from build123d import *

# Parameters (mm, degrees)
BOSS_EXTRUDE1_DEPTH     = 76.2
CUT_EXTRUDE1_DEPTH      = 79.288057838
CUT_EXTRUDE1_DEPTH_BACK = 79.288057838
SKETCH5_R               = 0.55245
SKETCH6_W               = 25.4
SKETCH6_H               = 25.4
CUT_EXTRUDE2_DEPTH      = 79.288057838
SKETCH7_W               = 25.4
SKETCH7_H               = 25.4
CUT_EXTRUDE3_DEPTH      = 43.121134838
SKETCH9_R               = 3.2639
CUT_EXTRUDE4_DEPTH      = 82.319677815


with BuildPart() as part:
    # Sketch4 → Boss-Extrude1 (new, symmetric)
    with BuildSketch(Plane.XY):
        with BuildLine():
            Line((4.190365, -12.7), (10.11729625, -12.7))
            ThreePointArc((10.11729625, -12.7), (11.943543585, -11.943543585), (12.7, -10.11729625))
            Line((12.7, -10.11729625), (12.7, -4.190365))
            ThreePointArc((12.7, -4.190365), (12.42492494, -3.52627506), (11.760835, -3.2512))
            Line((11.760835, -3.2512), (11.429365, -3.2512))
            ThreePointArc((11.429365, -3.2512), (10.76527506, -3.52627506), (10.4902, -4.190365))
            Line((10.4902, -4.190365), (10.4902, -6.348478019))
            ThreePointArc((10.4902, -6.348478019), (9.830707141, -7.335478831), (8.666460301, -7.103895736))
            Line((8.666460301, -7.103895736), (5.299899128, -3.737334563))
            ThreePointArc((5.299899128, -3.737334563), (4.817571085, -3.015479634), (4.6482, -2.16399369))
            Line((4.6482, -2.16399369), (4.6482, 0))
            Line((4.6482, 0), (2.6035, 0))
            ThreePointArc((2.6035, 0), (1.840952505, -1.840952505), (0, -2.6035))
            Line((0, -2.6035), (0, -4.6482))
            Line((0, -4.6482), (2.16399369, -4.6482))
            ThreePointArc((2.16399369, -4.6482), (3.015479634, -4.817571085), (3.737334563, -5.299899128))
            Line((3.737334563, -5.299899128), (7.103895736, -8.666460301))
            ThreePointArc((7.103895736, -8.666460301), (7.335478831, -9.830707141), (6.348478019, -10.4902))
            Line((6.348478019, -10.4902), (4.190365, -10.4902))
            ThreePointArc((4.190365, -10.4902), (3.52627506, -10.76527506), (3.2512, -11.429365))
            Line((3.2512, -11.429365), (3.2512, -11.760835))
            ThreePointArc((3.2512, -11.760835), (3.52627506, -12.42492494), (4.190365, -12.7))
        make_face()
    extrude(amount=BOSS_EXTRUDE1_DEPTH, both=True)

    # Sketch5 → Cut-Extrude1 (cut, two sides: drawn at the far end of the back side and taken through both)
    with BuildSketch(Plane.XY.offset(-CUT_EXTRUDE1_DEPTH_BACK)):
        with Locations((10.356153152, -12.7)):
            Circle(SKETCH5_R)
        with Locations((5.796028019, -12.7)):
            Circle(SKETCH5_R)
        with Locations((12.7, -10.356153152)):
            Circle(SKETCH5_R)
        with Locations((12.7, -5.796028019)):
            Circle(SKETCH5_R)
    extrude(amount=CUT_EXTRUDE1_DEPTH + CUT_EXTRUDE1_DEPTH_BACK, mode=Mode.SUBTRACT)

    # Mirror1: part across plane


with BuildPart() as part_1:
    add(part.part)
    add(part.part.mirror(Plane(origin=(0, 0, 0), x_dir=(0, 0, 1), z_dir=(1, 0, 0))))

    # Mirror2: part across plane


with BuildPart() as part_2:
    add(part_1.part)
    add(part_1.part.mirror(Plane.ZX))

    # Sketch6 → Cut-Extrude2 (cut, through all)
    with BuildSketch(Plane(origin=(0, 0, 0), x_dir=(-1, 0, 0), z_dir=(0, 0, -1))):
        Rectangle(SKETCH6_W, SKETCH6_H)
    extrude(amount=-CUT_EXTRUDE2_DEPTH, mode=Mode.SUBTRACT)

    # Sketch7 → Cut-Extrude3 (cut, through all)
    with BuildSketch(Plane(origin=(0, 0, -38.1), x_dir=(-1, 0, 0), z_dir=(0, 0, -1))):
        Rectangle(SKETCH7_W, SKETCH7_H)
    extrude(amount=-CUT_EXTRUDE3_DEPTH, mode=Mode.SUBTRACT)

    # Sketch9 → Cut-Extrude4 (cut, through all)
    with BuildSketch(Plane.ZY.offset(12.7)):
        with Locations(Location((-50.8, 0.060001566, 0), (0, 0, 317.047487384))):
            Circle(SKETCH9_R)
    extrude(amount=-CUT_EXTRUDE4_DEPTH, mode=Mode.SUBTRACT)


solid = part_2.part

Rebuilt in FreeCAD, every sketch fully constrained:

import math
import FreeCAD as App
import Part
import Sketcher
Q = App.Units.Quantity

doc = App.newDocument("Part")
body = doc.addObject("PartDesign::Body", "Body")

# Sketch on XY plane
sketch1 = body.newObject("Sketcher::SketchObject", "Sketch")
sketch1.AttachmentSupport = (doc.getObject("XY_Plane"), [""])
sketch1.MapMode = "FlatFace"
sketch1.addGeometry([
    Part.LineSegment(App.Vector(4.190365, -12.7, 0), App.Vector(10.117296, -12.7, 0)),  # 0
    Part.ArcOfCircle(Part.Circle(App.Vector(10.117296, -10.117296, 0), App.Vector(0, 0, 1), 2.582704), math.radians(-90), math.radians(0)),  # 1
    Part.LineSegment(App.Vector(12.7, -10.117296, 0), App.Vector(12.7, -4.190365, 0)),  # 2
    Part.ArcOfCircle(Part.Circle(App.Vector(11.760835, -4.190365, 0), App.Vector(0, 0, 1), 0.939165), math.radians(0), math.radians(90)),  # 3
    Part.LineSegment(App.Vector(11.760835, -3.2512, 0), App.Vector(11.429365, -3.2512, 0)),  # 4
    Part.ArcOfCircle(Part.Circle(App.Vector(11.429365, -4.190365, 0), App.Vector(0, 0, 1), 0.939165), math.radians(90), math.radians(180)),  # 5
    Part.LineSegment(App.Vector(10.4902, -4.190365, 0), App.Vector(10.4902, -6.348478, 0)),  # 6
    Part.ArcOfCircle(Part.Circle(App.Vector(9.421878, -6.348478, 0), App.Vector(0, 0, 1), 1.068322), math.radians(-135), math.radians(0)),  # 7
    Part.LineSegment(App.Vector(8.66646, -7.103896, 0), App.Vector(5.299899, -3.737335, 0)),  # 8
    Part.ArcOfCircle(Part.Circle(App.Vector(6.87324, -2.163994, 0), App.Vector(0, 0, 1), 2.22504), math.radians(-180), math.radians(-135)),  # 9
    Part.LineSegment(App.Vector(4.6482, -2.163994, 0), App.Vector(4.6482, 0, 0)),  # 10
    Part.LineSegment(App.Vector(4.6482, 0, 0), App.Vector(2.6035, 0, 0)),  # 11
    Part.ArcOfCircle(Part.Circle(App.Vector(0, 0, 0), App.Vector(0, 0, 1), 2.6035), math.radians(-90), math.radians(0)),  # 12
    Part.LineSegment(App.Vector(0, -2.6035, 0), App.Vector(0, -4.6482, 0)),  # 13
    Part.LineSegment(App.Vector(0, -4.6482, 0), App.Vector(2.163994, -4.6482, 0)),  # 14
    Part.ArcOfCircle(Part.Circle(App.Vector(2.163994, -6.87324, 0), App.Vector(0, 0, 1), 2.22504), math.radians(45), math.radians(90)),  # 15
    Part.LineSegment(App.Vector(3.737335, -5.299899, 0), App.Vector(7.103896, -8.66646, 0)),  # 16
    Part.ArcOfCircle(Part.Circle(App.Vector(6.348478, -9.421878, 0), App.Vector(0, 0, 1), 1.068322), math.radians(-90), math.radians(45)),  # 17
    Part.LineSegment(App.Vector(6.348478, -10.4902, 0), App.Vector(4.190365, -10.4902, 0)),  # 18
    Part.ArcOfCircle(Part.Circle(App.Vector(4.190365, -11.429365, 0), App.Vector(0, 0, 1), 0.939165), math.radians(90), math.radians(180)),  # 19
    Part.LineSegment(App.Vector(3.2512, -11.429365, 0), App.Vector(3.2512, -11.760835, 0)),  # 20
    Part.ArcOfCircle(Part.Circle(App.Vector(4.190365, -11.760835, 0), App.Vector(0, 0, 1), 0.939165), math.radians(-180), math.radians(-90)),  # 21
], False)
sketch1.addConstraint([
    Sketcher.Constraint("Tangent", 0, 2, 1, 1),
    Sketcher.Constraint("Tangent", 1, 2, 2, 1),
    Sketcher.Constraint("Tangent", 2, 2, 3, 1),
    Sketcher.Constraint("Tangent", 3, 2, 4, 1),
    Sketcher.Constraint("Tangent", 4, 2, 5, 1),
    Sketcher.Constraint("Tangent", 5, 2, 6, 1),
    Sketcher.Constraint("Tangent", 6, 2, 7, 2),
    Sketcher.Constraint("Tangent", 7, 1, 8, 1),
    Sketcher.Constraint("Tangent", 8, 2, 9, 2),
    Sketcher.Constraint("Tangent", 9, 1, 10, 1),
    Sketcher.Constraint("Coincident", 10, 2, 11, 1),
    Sketcher.Constraint("Coincident", 11, 2, 12, 2),
    Sketcher.Constraint("Coincident", 12, 1, 13, 1),
    Sketcher.Constraint("Coincident", 13, 2, 14, 1),
    Sketcher.Constraint("Tangent", 14, 2, 15, 2),
    Sketcher.Constraint("Tangent", 15, 1, 16, 1),
    Sketcher.Constraint("Tangent", 16, 2, 17, 2),
    Sketcher.Constraint("Tangent", 17, 1, 18, 1),
    Sketcher.Constraint("Tangent", 18, 2, 19, 1),
    Sketcher.Constraint("Tangent", 19, 2, 20, 1),
    Sketcher.Constraint("Tangent", 20, 2, 21, 1),
    Sketcher.Constraint("Tangent", 21, 2, 0, 1),
    Sketcher.Constraint("Horizontal", 0),
    Sketcher.Constraint("Vertical", 2),
    Sketcher.Constraint("Horizontal", 4),
    Sketcher.Constraint("Vertical", 6),
    Sketcher.Constraint("Vertical", 10),
    Sketcher.Constraint("Horizontal", 11),
    Sketcher.Constraint("Vertical", 13),
    Sketcher.Constraint("Horizontal", 14),
    Sketcher.Constraint("Horizontal", 18),
    Sketcher.Constraint("Vertical", 20),
    Sketcher.Constraint("Coincident", 12, 3, -1, 1),
    Sketcher.Constraint("Equal", 3, 5),
    Sketcher.Constraint("Equal", 9, 15),
    Sketcher.Constraint("Equal", 7, 17),
    Sketcher.Constraint("Equal", 5, 19),
    Sketcher.Constraint("Equal", 19, 21),
    Sketcher.Constraint("PointOnObject", 10, 2, -1),
    Sketcher.Constraint("PointOnObject", 12, 1, -2),
    Sketcher.Constraint("Parallel", 8, 16),
    Sketcher.Constraint("Equal", 0, 2),
    Sketcher.Constraint("Equal", 18, 6),
    Sketcher.Constraint("Equal", 14, 10),
    Sketcher.Constraint("Equal", 11, 13),
    Sketcher.Constraint("Equal", 4, 20),
    Sketcher.Constraint("Equal", 8, 16),
    Sketcher.Constraint("DistanceY", 0, 2, -1, 1, Q("0.5 in")),
    Sketcher.Constraint("Radius", 9, Q("0.0876 in")),
    Sketcher.Constraint("Radius", 12, Q("0.1025 in")),
    Sketcher.Constraint("DistanceX", 9, 1, 5, 2, Q("0.23 in")),
    Sketcher.Constraint("DistanceX", 11, 2, 11, 1, Q("0.0805 in")),
    Sketcher.Constraint("DistanceY", 3, 2, -1, 1, Q("0.128 in")),
    Sketcher.Constraint("Radius", 7, 1.068322),
    Sketcher.Constraint("DistanceX", 17, 3, 7, 3, Q("0.121 in")),
    Sketcher.Constraint("Radius", 1, 2.582704),
    Sketcher.Constraint("Radius", 3, 0.939165),
])
pad1 = body.newObject("PartDesign::Pad", "Pad")
pad1.Profile = sketch1
pad1.Length = Q("6 in")
pad1.Midplane = True

# Sketch on XY plane
sketch2 = body.newObject("Sketcher::SketchObject", "Sketch001")
sketch2.AttachmentSupport = (doc.getObject("XY_Plane"), [""])
sketch2.MapMode = "FlatFace"
sketch2.addGeometry([
    Part.Circle(App.Vector(10.356153, -12.7, 0), App.Vector(0, 0, 1), 0.55245),
    Part.Circle(App.Vector(5.796028, -12.7, 0), App.Vector(0, 0, 1), 0.55245),
    Part.Circle(App.Vector(12.7, -10.356153, 0), App.Vector(0, 0, 1), 0.55245),
    Part.Circle(App.Vector(12.7, -5.796028, 0), App.Vector(0, 0, 1), 0.55245),
], False)
sketch2.addConstraint([
    Sketcher.Constraint("Equal", 0, 1),
    Sketcher.Constraint("Equal", 1, 2),
    Sketcher.Constraint("Equal", 2, 3),
    Sketcher.Constraint("Horizontal", 0, 3, 1, 3),
    Sketcher.Constraint("Vertical", 2, 3, 3, 3),
    Sketcher.Constraint("Diameter", 0, Q("0.0435 in")),
    Sketcher.Constraint("DistanceY", 0, 3, -1, 1, Q("0.5 in")),
    Sketcher.Constraint("DistanceX", -1, 1, 2, 3, Q("0.5 in")),
    Sketcher.Constraint("DistanceX", -1, 1, 1, 3, 5.796028),
    Sketcher.Constraint("DistanceY", 3, 3, -1, 1, 5.796028),
    Sketcher.Constraint("DistanceX", -1, 1, 0, 3, 10.356153),
    Sketcher.Constraint("DistanceY", 2, 3, -1, 1, 10.356153),
])
pocket1 = body.newObject("PartDesign::Pocket", "Pocket")
pocket1.Profile = sketch2
pocket1.Type = "ThroughAll"
pocket1.Midplane = True
body2 = doc.addObject("PartDesign::Body", "Body001")
doc.recompute()

body2.BaseFeature = body
doc.recompute()

mirroring = doc.addObject("Part::Mirroring", "Mirroring")
mirroring.Source = body
mirroring.Base = App.Vector(0, 0, 0)
mirroring.Normal = App.Vector(1, 0, 0)
body3 = doc.addObject("PartDesign::Body", "Body002")
body3.BaseFeature = mirroring
boolean = body2.newObject("PartDesign::Boolean", "Boolean")
boolean.Type = "Fuse"
boolean.addObjects([body3])
doc.recompute()
body4 = doc.addObject("PartDesign::Body", "Body003")
doc.recompute()

body4.BaseFeature = body2
doc.recompute()

mirroring2 = doc.addObject("Part::Mirroring", "Mirroring001")
mirroring2.Source = body2
mirroring2.Base = App.Vector(0, 0, 0)
mirroring2.Normal = App.Vector(0, 1, 0)
body5 = doc.addObject("PartDesign::Body", "Body004")
body5.BaseFeature = mirroring2
boolean2 = body4.newObject("PartDesign::Boolean", "Boolean001")
boolean2.Type = "Fuse"
boolean2.addObjects([body5])
doc.recompute()

# Sketch on XY plane
sketch3 = body4.newObject("Sketcher::SketchObject", "Sketch002")
sketch3.AttachmentSupport = (doc.getObject("XY_Plane003"), [""])
sketch3.MapMode = "FlatFace"
sketch3.addGeometry([
    Part.LineSegment(App.Vector(12.7, 12.7, 0), App.Vector(12.7, -12.7, 0)),
    Part.LineSegment(App.Vector(12.7, -12.7, 0), App.Vector(-12.7, -12.7, 0)),
    Part.LineSegment(App.Vector(-12.7, -12.7, 0), App.Vector(-12.7, 12.7, 0)),
    Part.LineSegment(App.Vector(-12.7, 12.7, 0), App.Vector(12.7, 12.7, 0)),
], False)
sketch3.addConstraint([
    Sketcher.Constraint("Coincident", 0, 2, 1, 1),
    Sketcher.Constraint("Coincident", 1, 2, 2, 1),
    Sketcher.Constraint("Coincident", 2, 2, 3, 1),
    Sketcher.Constraint("Coincident", 3, 2, 0, 1),
    Sketcher.Constraint("Vertical", 0),
    Sketcher.Constraint("Horizontal", 1),
    Sketcher.Constraint("Vertical", 2),
    Sketcher.Constraint("Horizontal", 3),
    Sketcher.Constraint("Symmetric", 0, 2, 2, 2, -1, 1),
    Sketcher.Constraint("Equal", 3, 0),
    Sketcher.Constraint("DistanceX", 1, 2, 1, 1, Q("1 in")),
])
pocket2 = body4.newObject("PartDesign::Pocket", "Pocket001")
pocket2.Profile = sketch3
pocket2.Type = "ThroughAll"
pocket2.Reversed = True

# Sketch on XY plane
sketch4 = body4.newObject("Sketcher::SketchObject", "Sketch003")
sketch4.AttachmentSupport = (doc.getObject("XY_Plane003"), [""])
sketch4.MapMode = "FlatFace"
sketch4.AttachmentOffset = App.Placement(App.Vector(0, 0, -1.5 * 25.4), App.Rotation())
sketch4.addGeometry([
    Part.LineSegment(App.Vector(12.7, 12.7, 0), App.Vector(12.7, -12.7, 0)),
    Part.LineSegment(App.Vector(12.7, -12.7, 0), App.Vector(-12.7, -12.7, 0)),
    Part.LineSegment(App.Vector(-12.7, -12.7, 0), App.Vector(-12.7, 12.7, 0)),
    Part.LineSegment(App.Vector(-12.7, 12.7, 0), App.Vector(12.7, 12.7, 0)),
], False)
sketch4.addConstraint([
    Sketcher.Constraint("Coincident", 0, 2, 1, 1),
    Sketcher.Constraint("Coincident", 1, 2, 2, 1),
    Sketcher.Constraint("Coincident", 2, 2, 3, 1),
    Sketcher.Constraint("Coincident", 3, 2, 0, 1),
    Sketcher.Constraint("Vertical", 0),
    Sketcher.Constraint("Horizontal", 1),
    Sketcher.Constraint("Vertical", 2),
    Sketcher.Constraint("Horizontal", 3),
    Sketcher.Constraint("Symmetric", 0, 2, 2, 2, -1, 1),
    Sketcher.Constraint("Equal", 3, 0),
    Sketcher.Constraint("DistanceX", 1, 2, 1, 1, Q("1 in")),
])
pocket3 = body4.newObject("PartDesign::Pocket", "Pocket002")
pocket3.Profile = sketch4
pocket3.Type = "ThroughAll"
pocket3.Reversed = True

# Sketch on YZ plane
sketch5 = body4.newObject("Sketcher::SketchObject", "Sketch004")
sketch5.AttachmentSupport = (doc.getObject("YZ_Plane003"), [""])
sketch5.MapMode = "FlatFace"
sketch5.AttachmentOffset = App.Placement(App.Vector(0, 0, -0.5 * 25.4), App.Rotation())
sketch5.addGeometry(Part.Circle(App.Vector(0.060002, -50.8, 0), App.Vector(0, 0, 1), 3.2639), False)
sketch5.addConstraint([
    Sketcher.Constraint("Diameter", 0, Q("0.257 in")),
    Sketcher.Constraint("DistanceY", 0, 3, -1, 1, Q("2 in")),
    Sketcher.Constraint("DistanceX", -1, 1, 0, 3, 0.060002),
])
pocket4 = body4.newObject("PartDesign::Pocket", "Pocket003")
pocket4.Profile = sketch5
pocket4.Type = "ThroughAll"
pocket4.Reversed = True
mirroring.Visibility = False
mirroring2.Visibility = False

doc.recompute()
